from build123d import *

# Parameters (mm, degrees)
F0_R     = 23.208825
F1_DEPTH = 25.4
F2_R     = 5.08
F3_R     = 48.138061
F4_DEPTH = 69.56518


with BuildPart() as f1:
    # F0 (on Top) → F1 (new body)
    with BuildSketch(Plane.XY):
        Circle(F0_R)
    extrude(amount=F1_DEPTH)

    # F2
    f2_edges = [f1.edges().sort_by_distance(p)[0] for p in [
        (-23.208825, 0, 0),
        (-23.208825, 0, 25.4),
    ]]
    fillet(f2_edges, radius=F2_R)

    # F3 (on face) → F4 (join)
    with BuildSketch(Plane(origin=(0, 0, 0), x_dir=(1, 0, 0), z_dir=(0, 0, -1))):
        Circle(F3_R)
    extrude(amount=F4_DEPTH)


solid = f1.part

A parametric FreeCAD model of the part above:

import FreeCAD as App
import Part
import Sketcher
Q = App.Units.Quantity


def edges_at(feature, points):
    """Names of the edges that pass closest to the given points."""
    edges = feature.Shape.Edges
    near = lambda p: min(range(len(edges)), key=lambda i: edges[i].distToShape(Part.Vertex(*p))[0])
    return sorted({f"Edge{near(p) + 1}" for p in points})

doc = App.newDocument("Part")
body = doc.addObject("PartDesign::Body", "Body")

# Sketch on XY plane
sketch1 = doc.addObject("Sketcher::SketchObject", "Sketch")
body.addObject(sketch1)
sketch1.AttachmentSupport = (doc.XY_Plane, [""])
sketch1.MapMode = "FlatFace"
sketch1.addGeometry(Part.Circle(App.Vector(0, 0, 0), App.Vector(0, 0, 1), 23), False)
sketch1.addConstraint([
    Sketcher.Constraint("Coincident", 0, 3, -1, 1),
    Sketcher.Constraint("Diameter", 0, 46.41765),
])
pad1 = doc.addObject("PartDesign::Pad", "Pad")
body.addObject(pad1)
pad1.Profile = sketch1
pad1.Length = Q("1 in")
doc.recompute()

fillet = doc.addObject("PartDesign::Fillet", "Fillet")
body.addObject(fillet)
fillet.Base = (pad1, edges_at(pad1, [(-23.209, 0, 0), (-23.209, 0, 25.4)]))
fillet.Radius = Q("0.2 in")

# Sketch on XY plane
sketch2 = doc.addObject("Sketcher::SketchObject", "Sketch001")
body.addObject(sketch2)
sketch2.AttachmentSupport = (doc.XY_Plane, [""])
sketch2.MapMode = "FlatFace"
sketch2.addGeometry(Part.Circle(App.Vector(0, 0, 0), App.Vector(0, 0, 1), 48), False)
sketch2.addConstraint([
    Sketcher.Constraint("Coincident", 0, 3, -1, 1),
    Sketcher.Constraint("Diameter", 0, 96.276122),
])
pad2 = doc.addObject("PartDesign::Pad", "Pad001")
body.addObject(pad2)
pad2.Profile = sketch2
pad2.Length = 69.56518
pad2.Reversed = True

doc.recompute()
